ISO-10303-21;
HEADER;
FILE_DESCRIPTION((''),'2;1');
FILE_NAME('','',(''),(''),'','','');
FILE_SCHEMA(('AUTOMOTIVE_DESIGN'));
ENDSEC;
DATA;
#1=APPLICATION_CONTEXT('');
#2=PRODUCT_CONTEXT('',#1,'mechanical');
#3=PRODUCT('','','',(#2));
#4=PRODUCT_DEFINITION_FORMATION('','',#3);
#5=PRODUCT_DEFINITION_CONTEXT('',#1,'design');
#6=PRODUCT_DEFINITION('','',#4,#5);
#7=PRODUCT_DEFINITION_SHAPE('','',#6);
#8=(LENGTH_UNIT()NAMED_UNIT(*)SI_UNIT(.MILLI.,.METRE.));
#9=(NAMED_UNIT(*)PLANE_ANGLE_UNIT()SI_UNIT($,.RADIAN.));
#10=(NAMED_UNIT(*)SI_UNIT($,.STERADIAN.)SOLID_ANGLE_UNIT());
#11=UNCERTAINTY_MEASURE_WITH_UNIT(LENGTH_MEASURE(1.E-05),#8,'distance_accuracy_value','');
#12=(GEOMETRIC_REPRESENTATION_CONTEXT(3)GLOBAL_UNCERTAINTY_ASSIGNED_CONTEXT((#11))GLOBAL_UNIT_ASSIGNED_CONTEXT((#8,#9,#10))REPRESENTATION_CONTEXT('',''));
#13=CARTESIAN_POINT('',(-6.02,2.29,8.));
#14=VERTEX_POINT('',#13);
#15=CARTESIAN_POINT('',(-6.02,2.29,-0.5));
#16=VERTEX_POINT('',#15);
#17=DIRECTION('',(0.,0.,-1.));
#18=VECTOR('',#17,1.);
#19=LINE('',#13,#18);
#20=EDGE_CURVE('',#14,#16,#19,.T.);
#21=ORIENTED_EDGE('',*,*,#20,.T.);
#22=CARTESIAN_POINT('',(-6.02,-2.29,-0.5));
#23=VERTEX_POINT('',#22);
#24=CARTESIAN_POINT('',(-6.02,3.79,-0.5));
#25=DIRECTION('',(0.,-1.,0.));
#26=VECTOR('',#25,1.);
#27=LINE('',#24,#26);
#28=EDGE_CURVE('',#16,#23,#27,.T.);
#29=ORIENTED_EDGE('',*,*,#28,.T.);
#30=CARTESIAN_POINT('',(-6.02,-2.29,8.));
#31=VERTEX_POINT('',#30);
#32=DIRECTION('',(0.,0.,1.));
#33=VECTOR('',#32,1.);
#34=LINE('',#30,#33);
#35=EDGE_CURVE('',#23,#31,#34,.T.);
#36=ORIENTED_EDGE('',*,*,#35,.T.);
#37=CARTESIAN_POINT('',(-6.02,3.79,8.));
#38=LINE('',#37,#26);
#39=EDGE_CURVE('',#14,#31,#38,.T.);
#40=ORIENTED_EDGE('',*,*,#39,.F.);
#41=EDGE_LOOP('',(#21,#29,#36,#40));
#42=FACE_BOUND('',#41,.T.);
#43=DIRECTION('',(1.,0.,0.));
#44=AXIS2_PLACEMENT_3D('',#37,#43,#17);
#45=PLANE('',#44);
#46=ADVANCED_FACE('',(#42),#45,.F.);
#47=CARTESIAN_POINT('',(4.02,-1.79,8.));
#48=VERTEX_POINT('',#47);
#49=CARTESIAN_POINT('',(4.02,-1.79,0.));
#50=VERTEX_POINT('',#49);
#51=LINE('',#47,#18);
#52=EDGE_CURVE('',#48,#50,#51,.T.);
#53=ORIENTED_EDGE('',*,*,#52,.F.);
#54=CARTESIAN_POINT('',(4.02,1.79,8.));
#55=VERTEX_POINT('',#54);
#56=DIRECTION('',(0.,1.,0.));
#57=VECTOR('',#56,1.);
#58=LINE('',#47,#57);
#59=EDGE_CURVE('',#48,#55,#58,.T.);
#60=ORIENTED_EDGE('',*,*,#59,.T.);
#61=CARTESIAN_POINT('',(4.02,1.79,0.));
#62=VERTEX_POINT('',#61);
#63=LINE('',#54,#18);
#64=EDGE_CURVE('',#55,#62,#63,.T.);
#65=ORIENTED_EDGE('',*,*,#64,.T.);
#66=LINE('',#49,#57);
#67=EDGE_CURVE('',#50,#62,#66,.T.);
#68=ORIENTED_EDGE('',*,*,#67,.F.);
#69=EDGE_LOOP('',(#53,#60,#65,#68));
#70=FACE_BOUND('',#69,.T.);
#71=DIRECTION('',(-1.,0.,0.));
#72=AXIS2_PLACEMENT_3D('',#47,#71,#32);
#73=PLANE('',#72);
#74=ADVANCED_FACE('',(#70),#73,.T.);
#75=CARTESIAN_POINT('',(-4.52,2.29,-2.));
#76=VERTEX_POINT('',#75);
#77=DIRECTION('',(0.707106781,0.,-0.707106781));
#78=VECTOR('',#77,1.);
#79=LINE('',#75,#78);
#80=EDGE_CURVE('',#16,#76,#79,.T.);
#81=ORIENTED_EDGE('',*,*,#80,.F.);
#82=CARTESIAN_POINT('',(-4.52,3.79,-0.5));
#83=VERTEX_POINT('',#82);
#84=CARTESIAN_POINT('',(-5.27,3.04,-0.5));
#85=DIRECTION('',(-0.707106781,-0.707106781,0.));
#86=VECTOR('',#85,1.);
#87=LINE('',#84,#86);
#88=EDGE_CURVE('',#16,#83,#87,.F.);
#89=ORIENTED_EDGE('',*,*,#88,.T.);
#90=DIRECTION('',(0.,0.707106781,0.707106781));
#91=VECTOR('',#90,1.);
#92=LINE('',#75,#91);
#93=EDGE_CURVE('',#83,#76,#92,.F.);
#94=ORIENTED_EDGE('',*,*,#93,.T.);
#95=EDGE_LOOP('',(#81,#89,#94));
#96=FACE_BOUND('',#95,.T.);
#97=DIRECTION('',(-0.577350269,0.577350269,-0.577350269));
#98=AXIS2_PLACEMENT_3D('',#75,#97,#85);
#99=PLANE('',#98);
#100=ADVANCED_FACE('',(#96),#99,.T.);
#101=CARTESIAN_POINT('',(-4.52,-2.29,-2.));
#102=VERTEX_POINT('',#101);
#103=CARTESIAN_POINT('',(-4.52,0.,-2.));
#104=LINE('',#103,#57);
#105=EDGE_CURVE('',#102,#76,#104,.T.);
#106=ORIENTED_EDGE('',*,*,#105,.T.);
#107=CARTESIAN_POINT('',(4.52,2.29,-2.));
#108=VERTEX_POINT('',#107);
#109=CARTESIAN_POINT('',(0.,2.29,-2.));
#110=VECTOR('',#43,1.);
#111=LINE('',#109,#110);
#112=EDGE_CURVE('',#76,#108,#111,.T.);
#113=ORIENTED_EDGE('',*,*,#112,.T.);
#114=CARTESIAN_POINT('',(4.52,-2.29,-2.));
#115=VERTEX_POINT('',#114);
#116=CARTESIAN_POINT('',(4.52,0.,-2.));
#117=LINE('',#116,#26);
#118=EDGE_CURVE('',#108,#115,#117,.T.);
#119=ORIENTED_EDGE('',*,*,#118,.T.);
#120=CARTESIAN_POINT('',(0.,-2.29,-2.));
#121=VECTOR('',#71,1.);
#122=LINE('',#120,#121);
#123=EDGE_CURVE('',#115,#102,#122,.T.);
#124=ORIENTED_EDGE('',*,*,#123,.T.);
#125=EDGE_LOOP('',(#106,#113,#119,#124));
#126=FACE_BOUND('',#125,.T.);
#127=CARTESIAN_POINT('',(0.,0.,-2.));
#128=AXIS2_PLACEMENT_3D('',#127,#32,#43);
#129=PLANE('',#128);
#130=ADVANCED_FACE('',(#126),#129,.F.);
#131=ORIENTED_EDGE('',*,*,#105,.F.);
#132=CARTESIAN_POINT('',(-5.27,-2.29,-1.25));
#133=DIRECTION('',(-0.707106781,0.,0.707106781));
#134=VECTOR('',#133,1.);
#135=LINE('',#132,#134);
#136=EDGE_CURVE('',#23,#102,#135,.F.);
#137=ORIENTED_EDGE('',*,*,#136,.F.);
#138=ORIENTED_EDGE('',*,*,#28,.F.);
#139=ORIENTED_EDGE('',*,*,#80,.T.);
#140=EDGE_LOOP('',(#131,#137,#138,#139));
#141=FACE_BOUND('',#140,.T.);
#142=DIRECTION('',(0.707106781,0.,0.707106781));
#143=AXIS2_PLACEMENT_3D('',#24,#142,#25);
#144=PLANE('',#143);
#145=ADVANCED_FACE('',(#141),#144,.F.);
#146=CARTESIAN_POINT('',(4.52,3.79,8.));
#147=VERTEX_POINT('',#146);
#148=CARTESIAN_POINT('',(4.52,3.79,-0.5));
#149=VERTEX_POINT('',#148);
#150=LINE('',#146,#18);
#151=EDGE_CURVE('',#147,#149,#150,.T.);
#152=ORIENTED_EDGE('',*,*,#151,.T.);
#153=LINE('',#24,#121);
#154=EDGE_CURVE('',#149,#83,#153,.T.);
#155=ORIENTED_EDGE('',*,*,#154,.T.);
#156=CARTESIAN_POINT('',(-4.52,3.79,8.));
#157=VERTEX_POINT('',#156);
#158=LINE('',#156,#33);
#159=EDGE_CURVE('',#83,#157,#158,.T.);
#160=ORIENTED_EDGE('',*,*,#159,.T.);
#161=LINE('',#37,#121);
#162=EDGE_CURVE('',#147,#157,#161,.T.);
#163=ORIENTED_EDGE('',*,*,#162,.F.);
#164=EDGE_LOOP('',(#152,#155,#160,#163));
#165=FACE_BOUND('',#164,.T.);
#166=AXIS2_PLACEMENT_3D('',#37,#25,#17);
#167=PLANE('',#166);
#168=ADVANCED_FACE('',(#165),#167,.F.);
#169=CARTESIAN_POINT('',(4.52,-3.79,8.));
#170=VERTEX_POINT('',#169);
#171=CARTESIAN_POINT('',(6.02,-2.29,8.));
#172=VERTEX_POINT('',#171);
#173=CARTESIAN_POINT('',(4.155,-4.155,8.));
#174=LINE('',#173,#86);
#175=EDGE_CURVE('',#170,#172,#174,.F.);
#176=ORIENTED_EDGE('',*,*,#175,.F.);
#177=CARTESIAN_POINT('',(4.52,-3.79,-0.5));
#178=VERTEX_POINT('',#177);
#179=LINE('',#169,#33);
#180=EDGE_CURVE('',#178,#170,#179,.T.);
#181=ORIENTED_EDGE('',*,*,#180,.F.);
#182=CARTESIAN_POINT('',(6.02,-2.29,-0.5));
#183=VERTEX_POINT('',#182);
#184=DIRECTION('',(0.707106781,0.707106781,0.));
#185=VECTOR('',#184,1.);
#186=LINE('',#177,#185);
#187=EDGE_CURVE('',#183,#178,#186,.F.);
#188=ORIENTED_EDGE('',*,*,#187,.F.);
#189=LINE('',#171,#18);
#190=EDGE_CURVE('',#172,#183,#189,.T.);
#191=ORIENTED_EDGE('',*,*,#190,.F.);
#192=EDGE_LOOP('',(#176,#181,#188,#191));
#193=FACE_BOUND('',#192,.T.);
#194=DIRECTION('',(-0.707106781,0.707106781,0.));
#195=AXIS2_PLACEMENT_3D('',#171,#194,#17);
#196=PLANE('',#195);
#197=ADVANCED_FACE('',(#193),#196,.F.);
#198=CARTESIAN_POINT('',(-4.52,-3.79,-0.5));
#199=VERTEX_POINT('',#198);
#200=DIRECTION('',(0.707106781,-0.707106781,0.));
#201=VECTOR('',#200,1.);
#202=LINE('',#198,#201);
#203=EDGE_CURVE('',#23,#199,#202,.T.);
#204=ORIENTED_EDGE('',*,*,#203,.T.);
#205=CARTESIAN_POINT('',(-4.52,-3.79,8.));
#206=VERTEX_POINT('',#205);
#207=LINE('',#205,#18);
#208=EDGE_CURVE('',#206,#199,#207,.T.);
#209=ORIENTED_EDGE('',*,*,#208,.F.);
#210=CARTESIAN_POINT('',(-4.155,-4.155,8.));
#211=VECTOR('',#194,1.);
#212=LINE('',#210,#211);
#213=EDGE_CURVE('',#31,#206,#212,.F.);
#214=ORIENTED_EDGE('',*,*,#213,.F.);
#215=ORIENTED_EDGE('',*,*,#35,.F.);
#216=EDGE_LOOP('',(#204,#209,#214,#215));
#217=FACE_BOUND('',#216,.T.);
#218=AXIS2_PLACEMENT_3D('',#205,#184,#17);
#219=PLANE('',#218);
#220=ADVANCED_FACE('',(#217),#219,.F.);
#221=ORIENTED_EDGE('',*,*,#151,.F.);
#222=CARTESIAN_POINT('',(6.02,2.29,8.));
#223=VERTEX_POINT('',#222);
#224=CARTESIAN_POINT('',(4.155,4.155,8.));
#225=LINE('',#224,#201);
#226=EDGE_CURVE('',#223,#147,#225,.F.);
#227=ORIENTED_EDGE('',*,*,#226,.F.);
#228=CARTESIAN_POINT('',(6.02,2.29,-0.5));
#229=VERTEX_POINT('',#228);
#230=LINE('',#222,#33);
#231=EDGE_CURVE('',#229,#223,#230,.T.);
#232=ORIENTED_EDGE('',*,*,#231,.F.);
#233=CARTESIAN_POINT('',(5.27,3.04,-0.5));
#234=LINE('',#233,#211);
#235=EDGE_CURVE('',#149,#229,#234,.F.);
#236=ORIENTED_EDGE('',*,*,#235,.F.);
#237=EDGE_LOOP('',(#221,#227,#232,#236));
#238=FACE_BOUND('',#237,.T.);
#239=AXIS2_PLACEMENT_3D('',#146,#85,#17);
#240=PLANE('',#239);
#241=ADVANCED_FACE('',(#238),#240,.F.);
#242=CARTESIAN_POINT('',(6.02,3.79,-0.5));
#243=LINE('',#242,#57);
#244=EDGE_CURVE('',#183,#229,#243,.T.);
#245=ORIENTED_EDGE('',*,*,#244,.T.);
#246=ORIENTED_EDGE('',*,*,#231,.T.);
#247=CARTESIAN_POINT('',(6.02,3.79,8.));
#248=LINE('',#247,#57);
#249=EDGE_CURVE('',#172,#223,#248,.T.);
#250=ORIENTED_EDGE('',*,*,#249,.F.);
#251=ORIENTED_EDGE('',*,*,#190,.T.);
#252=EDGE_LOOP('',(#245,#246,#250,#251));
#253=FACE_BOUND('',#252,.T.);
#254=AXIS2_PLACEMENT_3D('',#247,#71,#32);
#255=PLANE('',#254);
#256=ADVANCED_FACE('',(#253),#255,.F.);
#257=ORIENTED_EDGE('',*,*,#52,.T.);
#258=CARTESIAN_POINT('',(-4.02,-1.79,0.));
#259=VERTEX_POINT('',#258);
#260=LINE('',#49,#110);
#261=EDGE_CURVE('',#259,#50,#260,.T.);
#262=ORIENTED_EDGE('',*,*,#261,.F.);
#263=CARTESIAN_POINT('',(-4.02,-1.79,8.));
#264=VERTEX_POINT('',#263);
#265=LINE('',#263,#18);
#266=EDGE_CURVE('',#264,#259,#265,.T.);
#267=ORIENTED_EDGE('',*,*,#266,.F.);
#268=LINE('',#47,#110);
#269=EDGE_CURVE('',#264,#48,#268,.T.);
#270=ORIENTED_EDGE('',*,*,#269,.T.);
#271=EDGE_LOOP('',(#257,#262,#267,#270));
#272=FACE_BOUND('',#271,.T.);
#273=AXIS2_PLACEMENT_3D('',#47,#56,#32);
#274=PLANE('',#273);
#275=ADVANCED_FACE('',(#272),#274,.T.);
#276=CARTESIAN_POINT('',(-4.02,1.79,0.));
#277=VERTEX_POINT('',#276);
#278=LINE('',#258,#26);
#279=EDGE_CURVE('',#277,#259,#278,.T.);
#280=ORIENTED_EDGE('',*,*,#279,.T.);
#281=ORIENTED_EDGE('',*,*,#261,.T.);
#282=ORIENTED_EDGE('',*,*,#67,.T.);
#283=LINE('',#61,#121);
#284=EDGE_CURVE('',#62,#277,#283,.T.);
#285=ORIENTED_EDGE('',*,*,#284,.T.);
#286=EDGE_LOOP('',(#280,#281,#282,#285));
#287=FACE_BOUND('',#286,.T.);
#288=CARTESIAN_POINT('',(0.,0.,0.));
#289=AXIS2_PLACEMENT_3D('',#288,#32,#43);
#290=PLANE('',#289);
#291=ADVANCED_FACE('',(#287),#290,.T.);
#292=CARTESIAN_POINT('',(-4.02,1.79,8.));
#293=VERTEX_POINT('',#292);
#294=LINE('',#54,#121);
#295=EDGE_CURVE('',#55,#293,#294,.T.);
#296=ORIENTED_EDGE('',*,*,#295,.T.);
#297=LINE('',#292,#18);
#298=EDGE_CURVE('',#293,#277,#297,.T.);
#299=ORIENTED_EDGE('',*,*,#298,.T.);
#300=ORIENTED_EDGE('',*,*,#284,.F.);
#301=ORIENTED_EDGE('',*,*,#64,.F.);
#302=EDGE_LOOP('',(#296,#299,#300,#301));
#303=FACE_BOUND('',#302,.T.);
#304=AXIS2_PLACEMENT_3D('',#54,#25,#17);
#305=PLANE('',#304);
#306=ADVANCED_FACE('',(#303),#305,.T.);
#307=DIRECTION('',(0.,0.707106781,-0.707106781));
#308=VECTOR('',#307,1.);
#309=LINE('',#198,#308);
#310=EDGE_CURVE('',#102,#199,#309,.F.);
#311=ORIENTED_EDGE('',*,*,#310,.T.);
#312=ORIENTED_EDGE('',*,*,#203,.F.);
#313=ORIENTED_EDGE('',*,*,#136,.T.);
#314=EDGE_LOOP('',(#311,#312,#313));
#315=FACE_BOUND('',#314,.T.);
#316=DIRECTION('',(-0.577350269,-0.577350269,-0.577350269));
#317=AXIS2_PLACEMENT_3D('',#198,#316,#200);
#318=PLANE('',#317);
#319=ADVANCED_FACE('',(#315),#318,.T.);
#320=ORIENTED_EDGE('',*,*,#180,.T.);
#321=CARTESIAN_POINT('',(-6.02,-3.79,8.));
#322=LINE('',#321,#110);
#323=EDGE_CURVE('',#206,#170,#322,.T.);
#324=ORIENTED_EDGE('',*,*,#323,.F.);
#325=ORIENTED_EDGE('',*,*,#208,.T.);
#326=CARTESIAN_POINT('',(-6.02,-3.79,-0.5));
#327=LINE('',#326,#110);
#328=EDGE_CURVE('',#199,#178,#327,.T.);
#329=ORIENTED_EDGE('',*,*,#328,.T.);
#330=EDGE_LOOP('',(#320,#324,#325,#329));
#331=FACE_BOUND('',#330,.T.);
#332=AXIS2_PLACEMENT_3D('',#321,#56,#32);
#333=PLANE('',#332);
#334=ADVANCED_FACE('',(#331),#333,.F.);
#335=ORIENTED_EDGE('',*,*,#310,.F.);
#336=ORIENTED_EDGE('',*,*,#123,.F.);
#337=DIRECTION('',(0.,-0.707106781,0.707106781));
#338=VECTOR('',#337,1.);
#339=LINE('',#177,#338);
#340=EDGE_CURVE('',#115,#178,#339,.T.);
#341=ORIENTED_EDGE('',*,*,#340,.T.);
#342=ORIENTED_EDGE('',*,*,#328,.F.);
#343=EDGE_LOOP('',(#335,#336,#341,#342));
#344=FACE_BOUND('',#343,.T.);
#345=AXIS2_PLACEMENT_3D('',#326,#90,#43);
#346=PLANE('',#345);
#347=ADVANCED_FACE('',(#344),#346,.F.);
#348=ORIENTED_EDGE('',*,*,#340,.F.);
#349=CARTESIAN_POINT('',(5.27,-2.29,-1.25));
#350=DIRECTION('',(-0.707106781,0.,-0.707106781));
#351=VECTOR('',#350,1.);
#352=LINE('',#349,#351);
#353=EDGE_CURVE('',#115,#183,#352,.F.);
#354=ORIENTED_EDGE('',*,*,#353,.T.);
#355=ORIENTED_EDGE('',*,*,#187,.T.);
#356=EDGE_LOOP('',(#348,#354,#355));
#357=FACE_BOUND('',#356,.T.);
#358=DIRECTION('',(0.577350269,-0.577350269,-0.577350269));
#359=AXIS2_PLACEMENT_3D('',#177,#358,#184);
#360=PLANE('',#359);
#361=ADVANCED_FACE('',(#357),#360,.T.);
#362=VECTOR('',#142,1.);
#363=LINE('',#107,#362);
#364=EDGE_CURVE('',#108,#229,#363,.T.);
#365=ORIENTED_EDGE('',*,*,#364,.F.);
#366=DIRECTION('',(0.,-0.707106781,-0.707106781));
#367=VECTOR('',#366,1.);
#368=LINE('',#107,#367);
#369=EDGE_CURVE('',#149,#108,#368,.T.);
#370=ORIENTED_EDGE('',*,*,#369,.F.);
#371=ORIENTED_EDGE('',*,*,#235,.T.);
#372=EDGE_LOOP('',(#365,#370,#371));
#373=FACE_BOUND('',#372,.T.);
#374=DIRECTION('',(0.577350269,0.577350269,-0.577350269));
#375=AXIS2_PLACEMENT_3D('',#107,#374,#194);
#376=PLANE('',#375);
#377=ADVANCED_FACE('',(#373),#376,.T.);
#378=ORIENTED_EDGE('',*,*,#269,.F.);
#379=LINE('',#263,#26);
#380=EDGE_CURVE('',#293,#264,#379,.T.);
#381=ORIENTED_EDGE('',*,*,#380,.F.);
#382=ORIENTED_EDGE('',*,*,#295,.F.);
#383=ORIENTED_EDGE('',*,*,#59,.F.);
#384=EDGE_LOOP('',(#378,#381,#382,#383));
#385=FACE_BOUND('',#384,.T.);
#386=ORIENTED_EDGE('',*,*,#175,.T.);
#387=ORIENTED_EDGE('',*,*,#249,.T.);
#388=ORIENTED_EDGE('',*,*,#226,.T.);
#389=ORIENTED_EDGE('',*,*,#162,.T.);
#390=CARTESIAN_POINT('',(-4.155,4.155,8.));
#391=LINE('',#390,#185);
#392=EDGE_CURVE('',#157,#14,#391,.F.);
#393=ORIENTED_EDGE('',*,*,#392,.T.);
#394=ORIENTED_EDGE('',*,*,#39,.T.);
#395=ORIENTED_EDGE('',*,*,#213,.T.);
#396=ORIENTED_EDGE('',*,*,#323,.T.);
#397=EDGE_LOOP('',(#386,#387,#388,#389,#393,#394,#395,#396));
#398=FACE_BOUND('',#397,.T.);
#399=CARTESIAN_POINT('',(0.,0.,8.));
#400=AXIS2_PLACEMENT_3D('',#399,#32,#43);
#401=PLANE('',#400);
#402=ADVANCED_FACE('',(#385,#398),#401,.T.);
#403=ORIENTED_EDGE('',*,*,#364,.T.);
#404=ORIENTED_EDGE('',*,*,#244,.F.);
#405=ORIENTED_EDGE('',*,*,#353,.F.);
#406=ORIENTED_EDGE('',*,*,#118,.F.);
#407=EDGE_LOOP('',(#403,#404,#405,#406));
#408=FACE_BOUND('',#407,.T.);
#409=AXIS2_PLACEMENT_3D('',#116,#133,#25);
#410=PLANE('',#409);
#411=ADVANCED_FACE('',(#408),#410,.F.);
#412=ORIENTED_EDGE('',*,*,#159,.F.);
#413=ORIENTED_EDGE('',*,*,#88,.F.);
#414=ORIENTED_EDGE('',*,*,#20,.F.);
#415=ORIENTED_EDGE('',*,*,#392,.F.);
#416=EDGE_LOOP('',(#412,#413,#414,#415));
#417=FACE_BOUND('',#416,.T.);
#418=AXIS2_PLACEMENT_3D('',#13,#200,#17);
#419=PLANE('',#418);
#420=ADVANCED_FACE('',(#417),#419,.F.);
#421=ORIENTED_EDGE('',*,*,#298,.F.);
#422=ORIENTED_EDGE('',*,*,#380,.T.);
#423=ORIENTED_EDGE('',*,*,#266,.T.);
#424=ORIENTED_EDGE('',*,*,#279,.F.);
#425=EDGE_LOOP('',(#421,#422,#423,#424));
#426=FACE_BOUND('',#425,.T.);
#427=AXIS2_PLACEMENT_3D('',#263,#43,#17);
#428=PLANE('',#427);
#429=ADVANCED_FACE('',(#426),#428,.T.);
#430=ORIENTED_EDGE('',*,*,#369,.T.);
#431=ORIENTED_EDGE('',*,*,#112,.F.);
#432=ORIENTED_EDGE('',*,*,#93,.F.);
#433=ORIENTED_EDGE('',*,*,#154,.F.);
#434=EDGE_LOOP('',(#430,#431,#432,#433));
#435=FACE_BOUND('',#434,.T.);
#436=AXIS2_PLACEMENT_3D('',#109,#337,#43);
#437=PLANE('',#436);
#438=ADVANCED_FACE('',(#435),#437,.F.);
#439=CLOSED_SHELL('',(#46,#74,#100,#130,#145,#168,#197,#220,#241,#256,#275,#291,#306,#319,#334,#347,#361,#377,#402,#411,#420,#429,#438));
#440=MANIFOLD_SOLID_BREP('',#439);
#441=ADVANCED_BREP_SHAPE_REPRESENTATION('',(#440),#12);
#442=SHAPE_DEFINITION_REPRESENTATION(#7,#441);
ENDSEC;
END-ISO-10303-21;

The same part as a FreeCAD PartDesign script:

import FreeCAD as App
import Part
import Sketcher


def edges_at(feature, points):
    """Names of the edges that pass closest to the given points."""
    edges = feature.Shape.Edges
    near = lambda p: min(range(len(edges)), key=lambda i: edges[i].distToShape(Part.Vertex(*p))[0])
    return sorted({f"Edge{near(p) + 1}" for p in points})


def add_polygon(sketch, points):
    """Adds a closed chain of lines whose ends are joined by coincident constraints."""
    first, n = sketch.GeometryCount, len(points)
    for a, b in zip(points, points[1:] + points[:1]):
        sketch.addGeometry(Part.LineSegment(App.Vector(*a, 0), App.Vector(*b, 0)), False)
    for i in range(n):
        sketch.addConstraint(Sketcher.Constraint("Coincident", first + i, 2, first + (i + 1) % n, 1))

doc = App.newDocument("Part")
body = doc.addObject("PartDesign::Body", "Body")

# Sketch on XY plane
sketch1 = body.newObject("Sketcher::SketchObject", "Sketch")
sketch1.AttachmentSupport = (doc.getObject("XY_Plane"), [""])
sketch1.MapMode = "FlatFace"
add_polygon(sketch1, [(-6, 3.8), (-6, -3.8), (6, -3.8), (6, 3.8)])  # lines 0-3
add_polygon(sketch1, [(4, -1.8), (-4, -1.8), (-4, 1.8), (4, 1.8)])  # lines 4-7
sketch1.addConstraint([
    Sketcher.Constraint("Vertical", 0),
    Sketcher.Constraint("Horizontal", 1),
    Sketcher.Constraint("Vertical", 2),
    Sketcher.Constraint("Horizontal", 3),
    Sketcher.Constraint("Horizontal", 4),
    Sketcher.Constraint("Vertical", 5),
    Sketcher.Constraint("Horizontal", 6),
    Sketcher.Constraint("Vertical", 7),
    Sketcher.Constraint("Symmetric", 0, 2, 2, 2, -1, 1),
    Sketcher.Constraint("Symmetric", 4, 2, 6, 2, -1, 1),
    Sketcher.Constraint("DistanceX", 0, 2, 4, 2, 2.0),
    Sketcher.Constraint("DistanceY", 0, 2, 4, 2, 2.0),
    Sketcher.Constraint("DistanceX", 1, 1, 1, 2, 12.04),
    Sketcher.Constraint("DistanceY", 0, 2, 0, 1, 7.58),
])
pad1 = body.newObject("PartDesign::Pad", "Pad")
pad1.Profile = sketch1
pad1.Length = 8

# Sketch on XY plane
sketch2 = body.newObject("Sketcher::SketchObject", "Sketch001")
sketch2.AttachmentSupport = (doc.getObject("XY_Plane"), [""])
sketch2.MapMode = "FlatFace"
add_polygon(sketch2, [(-6, 4), (-6, -4), (6, -4), (6, 4)])  # lines 0-3
sketch2.addConstraint([
    Sketcher.Constraint("Vertical", 0),
    Sketcher.Constraint("Horizontal", 1),
    Sketcher.Constraint("Vertical", 2),
    Sketcher.Constraint("Horizontal", 3),
    Sketcher.Constraint("Symmetric", 0, 2, 2, 2, -1, 1),
    Sketcher.Constraint("DistanceX", 1, 1, 1, 2, 12.04),
    Sketcher.Constraint("DistanceY", 0, 2, 0, 1, 7.58),
])
pad2 = body.newObject("PartDesign::Pad", "Pad001")
pad2.Profile = sketch2
pad2.Length = 2
pad2.Reversed = True
doc.recompute()

chamfer = body.newObject("PartDesign::Chamfer", "Chamfer")
chamfer.Base = (pad2, edges_at(pad2, [
    (0, -3.79, -2),
    (-6.02, 0, -2),
    (6.02, 0, -2),
    (0, 3.79, -2),
    (6.02, -3.79, 3),
    (-6.02, -3.79, 3),
    (-6.02, 3.79, 3),
    (6.02, 3.79, 3),
]))
chamfer.Size = 1.5

doc.recompute()
